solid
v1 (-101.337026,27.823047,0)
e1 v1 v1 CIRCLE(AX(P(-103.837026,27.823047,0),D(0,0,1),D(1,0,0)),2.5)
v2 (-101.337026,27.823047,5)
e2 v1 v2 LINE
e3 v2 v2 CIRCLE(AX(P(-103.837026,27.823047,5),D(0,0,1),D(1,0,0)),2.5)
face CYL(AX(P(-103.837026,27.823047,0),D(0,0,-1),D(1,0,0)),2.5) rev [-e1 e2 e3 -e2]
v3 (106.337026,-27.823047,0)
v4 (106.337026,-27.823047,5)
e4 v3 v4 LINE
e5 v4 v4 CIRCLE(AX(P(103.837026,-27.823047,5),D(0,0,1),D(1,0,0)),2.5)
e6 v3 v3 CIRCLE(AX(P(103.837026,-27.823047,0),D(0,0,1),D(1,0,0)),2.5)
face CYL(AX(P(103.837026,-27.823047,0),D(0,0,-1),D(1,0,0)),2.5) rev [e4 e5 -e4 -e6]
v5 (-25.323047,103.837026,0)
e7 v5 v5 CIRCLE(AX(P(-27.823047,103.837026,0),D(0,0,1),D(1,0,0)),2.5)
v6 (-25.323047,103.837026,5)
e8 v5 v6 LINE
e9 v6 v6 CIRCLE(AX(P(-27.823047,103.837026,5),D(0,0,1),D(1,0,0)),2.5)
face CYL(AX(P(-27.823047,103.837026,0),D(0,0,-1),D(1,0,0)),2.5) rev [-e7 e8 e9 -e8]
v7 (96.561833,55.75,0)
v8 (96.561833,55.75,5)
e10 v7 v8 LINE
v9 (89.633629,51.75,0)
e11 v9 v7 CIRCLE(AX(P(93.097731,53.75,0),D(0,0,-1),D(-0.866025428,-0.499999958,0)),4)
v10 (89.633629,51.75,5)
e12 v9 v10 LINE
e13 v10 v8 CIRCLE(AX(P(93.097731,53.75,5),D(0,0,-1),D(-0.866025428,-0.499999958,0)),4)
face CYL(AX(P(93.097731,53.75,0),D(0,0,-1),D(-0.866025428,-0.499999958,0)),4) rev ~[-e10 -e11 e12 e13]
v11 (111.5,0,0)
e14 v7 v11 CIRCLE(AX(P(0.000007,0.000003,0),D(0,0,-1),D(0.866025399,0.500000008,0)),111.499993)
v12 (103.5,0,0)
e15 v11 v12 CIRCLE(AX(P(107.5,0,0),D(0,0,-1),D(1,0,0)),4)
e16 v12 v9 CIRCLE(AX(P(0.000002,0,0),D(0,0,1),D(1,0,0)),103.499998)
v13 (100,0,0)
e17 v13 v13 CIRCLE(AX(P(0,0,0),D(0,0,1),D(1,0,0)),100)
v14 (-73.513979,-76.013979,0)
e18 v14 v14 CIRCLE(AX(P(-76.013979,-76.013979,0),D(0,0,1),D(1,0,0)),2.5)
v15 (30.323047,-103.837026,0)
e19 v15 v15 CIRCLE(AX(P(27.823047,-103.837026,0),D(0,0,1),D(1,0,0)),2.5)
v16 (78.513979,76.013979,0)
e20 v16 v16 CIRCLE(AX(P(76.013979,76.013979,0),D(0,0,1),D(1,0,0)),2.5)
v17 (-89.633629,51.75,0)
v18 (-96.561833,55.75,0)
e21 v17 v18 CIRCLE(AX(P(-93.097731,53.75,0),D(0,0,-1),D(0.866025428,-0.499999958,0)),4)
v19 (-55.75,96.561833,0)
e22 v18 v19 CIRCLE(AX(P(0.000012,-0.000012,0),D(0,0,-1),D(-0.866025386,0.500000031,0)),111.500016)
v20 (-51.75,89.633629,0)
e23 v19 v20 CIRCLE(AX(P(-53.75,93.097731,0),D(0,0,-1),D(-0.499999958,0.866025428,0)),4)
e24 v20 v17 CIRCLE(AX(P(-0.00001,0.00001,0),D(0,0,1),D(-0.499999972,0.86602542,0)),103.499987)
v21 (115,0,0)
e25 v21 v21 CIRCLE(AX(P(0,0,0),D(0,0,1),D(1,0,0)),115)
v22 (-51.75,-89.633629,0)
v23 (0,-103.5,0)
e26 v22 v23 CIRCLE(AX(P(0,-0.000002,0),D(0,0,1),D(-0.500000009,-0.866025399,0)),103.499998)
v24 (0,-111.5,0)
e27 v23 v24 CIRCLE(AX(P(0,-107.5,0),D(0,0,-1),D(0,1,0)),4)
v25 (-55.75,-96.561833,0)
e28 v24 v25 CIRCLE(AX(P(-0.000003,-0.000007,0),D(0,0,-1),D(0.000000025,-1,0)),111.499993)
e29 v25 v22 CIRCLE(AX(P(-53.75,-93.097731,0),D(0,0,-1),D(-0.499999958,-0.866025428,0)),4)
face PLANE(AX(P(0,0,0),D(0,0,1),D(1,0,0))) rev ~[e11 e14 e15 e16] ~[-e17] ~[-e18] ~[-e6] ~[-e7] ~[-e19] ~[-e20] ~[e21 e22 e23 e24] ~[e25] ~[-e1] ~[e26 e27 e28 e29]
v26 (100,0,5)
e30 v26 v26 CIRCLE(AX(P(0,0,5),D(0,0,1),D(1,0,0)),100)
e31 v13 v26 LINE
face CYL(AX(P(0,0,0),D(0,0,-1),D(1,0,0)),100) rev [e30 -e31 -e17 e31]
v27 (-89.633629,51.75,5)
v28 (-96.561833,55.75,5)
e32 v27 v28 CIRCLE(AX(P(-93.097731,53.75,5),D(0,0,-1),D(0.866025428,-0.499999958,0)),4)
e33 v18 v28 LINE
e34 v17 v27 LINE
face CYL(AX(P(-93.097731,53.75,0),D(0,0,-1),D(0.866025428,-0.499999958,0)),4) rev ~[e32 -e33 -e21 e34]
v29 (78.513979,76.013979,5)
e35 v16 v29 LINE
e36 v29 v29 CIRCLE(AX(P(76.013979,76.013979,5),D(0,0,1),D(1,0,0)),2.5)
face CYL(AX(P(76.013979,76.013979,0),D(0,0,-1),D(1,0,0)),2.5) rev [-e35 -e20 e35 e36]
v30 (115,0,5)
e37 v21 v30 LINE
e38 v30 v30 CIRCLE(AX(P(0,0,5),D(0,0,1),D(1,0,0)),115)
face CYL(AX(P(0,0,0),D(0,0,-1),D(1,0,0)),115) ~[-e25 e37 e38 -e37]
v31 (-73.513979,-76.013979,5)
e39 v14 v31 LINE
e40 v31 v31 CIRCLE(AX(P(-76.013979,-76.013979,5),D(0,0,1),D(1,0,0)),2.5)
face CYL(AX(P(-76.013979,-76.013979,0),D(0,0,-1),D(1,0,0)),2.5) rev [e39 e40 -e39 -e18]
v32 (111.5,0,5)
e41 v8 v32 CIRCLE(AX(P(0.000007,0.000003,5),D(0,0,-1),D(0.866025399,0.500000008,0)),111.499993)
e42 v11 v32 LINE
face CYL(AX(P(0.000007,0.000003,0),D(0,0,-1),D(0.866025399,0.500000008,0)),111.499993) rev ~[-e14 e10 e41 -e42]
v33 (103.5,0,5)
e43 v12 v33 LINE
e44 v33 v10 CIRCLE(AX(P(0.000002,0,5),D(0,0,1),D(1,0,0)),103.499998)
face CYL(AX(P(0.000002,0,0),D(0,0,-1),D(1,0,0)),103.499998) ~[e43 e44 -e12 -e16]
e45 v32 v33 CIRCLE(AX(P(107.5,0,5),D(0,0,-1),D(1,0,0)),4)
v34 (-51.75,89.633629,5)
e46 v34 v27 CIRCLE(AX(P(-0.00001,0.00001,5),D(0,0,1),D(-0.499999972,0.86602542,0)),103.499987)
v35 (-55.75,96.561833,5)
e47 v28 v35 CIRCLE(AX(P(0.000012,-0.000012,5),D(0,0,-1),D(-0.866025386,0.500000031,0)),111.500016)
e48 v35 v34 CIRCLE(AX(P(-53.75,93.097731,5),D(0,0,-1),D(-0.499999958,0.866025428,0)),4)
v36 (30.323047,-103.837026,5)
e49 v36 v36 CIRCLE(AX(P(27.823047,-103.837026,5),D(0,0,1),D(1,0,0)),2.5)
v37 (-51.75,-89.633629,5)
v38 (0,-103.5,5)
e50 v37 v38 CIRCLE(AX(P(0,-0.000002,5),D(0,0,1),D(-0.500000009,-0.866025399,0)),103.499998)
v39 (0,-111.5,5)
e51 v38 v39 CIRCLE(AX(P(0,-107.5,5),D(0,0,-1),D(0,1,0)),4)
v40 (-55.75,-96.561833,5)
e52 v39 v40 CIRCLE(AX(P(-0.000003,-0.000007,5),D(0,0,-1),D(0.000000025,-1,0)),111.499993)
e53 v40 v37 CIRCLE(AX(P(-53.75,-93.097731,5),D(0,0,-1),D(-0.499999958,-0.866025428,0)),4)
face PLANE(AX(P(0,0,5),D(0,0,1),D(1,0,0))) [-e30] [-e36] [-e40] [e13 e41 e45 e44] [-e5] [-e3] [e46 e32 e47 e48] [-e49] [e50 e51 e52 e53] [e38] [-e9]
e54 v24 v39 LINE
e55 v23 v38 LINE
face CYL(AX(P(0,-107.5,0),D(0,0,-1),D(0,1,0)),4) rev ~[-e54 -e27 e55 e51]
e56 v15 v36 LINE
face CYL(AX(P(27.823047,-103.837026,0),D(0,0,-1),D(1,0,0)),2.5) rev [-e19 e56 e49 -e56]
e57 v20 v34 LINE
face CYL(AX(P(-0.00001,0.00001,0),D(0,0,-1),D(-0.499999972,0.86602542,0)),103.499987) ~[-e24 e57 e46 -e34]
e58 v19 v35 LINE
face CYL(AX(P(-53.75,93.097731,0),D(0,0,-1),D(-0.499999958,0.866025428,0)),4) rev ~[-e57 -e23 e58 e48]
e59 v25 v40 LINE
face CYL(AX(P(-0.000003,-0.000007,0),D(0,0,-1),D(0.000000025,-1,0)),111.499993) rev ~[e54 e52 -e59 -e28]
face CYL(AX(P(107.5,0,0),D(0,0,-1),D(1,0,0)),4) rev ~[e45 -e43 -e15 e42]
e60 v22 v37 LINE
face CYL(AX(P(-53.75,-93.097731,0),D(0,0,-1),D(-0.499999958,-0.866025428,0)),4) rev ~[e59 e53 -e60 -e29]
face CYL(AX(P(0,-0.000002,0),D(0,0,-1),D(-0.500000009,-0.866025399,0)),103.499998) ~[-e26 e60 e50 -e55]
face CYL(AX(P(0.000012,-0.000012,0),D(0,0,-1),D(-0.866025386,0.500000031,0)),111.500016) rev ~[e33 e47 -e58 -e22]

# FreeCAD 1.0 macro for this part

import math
import FreeCAD as App
import Part
import Sketcher
Q = App.Units.Quantity

doc = App.newDocument("Part")
body = doc.addObject("PartDesign::Body", "Body")

# Sketch on XY plane
sketch1 = body.newObject("Sketcher::SketchObject", "Sketch")
sketch1.AttachmentSupport = (doc.getObject("XY_Plane"), [""])
sketch1.MapMode = "FlatFace"
sketch1.addGeometry(Part.Circle(App.Vector(0, 0, 0), App.Vector(0, 0, 1), 115), False)
sketch1.addGeometry(Part.Circle(App.Vector(-76.013979, -76.013979, 0), App.Vector(0, 0, 1), 2.5), False)
sketch1.addGeometry(Part.ArcOfCircle(Part.Circle(App.Vector(0, -107.5, 0), App.Vector(0, 0, 1), 4), math.radians(-90), math.radians(90)), False)
sketch1.addGeometry(Part.ArcOfCircle(Part.Circle(App.Vector(-0.000003, -0.000007, 0), App.Vector(0, 0, 1), 111.499993), math.radians(-120.000001), math.radians(-89.999999)), False)
sketch1.addGeometry(Part.ArcOfCircle(Part.Circle(App.Vector(-53.75, -93.097731, 0), App.Vector(0, 0, 1), 4), math.radians(60.000003), math.radians(240.000003)), False)
sketch1.addGeometry(Part.ArcOfCircle(Part.Circle(App.Vector(0, -0.000002, 0), App.Vector(0, 0, 1), 103.499998), math.radians(-120.000001), math.radians(-90)), False)
sketch1.addGeometry(Part.Circle(App.Vector(27.823047, -103.837026, 0), App.Vector(0, 0, 1), 2.5), False)
sketch1.addGeometry(Part.Circle(App.Vector(103.837026, -27.823047, 0), App.Vector(0, 0, 1), 2.5), False)
sketch1.addGeometry(Part.Circle(App.Vector(-103.837026, 27.823047, 0), App.Vector(0, 0, 1), 2.5), False)
sketch1.addGeometry(Part.Circle(App.Vector(0, 0, 0), App.Vector(0, 0, 1), 100), False)
sketch1.addGeometry(Part.ArcOfCircle(Part.Circle(App.Vector(-93.097731, 53.75, 0), App.Vector(0, 0, 1), 4), math.radians(150.000003), math.radians(330.000003)), False)
sketch1.addGeometry(Part.ArcOfCircle(Part.Circle(App.Vector(0.000012, -0.000012, 0), App.Vector(0, 0, 1), 111.500016), math.radians(120.000002), math.radians(149.999998)), False)
sketch1.addGeometry(Part.ArcOfCircle(Part.Circle(App.Vector(-53.75, 93.097731, 0), App.Vector(0, 0, 1), 4), math.radians(-60.000003), math.radians(119.999997)), False)
sketch1.addGeometry(Part.ArcOfCircle(Part.Circle(App.Vector(-0.00001, 0.00001, 0), App.Vector(0, 0, 1), 103.499987), math.radians(119.999998), math.radians(150.000002)), False)
sketch1.addGeometry(Part.Circle(App.Vector(-27.823047, 103.837026, 0), App.Vector(0, 0, 1), 2.5), False)
sketch1.addGeometry(Part.ArcOfCircle(Part.Circle(App.Vector(0.000007, 0.000003, 0), App.Vector(0, 0, 1), 111.499993), math.radians(-0.000001), math.radians(30.000001)), False)
sketch1.addGeometry(Part.ArcOfCircle(Part.Circle(App.Vector(107.5, 0, 0), App.Vector(0, 0, 1), 4), math.radians(180), math.radians(360)), False)
sketch1.addGeometry(Part.ArcOfCircle(Part.Circle(App.Vector(0.000002, 0, 0), App.Vector(0, 0, 1), 103.499998), math.radians(0), math.radians(30.000001)), False)
sketch1.addGeometry(Part.ArcOfCircle(Part.Circle(App.Vector(93.097731, 53.75, 0), App.Vector(0, 0, 1), 4), math.radians(29.999997), math.radians(209.999997)), False)
sketch1.addGeometry(Part.Circle(App.Vector(76.013979, 76.013979, 0), App.Vector(0, 0, 1), 2.5), False)
sketch1.addConstraint(Sketcher.Constraint("Coincident", 2, 1, 3, 2))
sketch1.addConstraint(Sketcher.Constraint("Coincident", 3, 1, 4, 2))
sketch1.addConstraint(Sketcher.Constraint("Coincident", 4, 1, 5, 1))
sketch1.addConstraint(Sketcher.Constraint("Coincident", 5, 2, 2, 2))
sketch1.addConstraint(Sketcher.Constraint("Coincident", 10, 1, 11, 2))
sketch1.addConstraint(Sketcher.Constraint("Coincident", 11, 1, 12, 2))
sketch1.addConstraint(Sketcher.Constraint("Coincident", 12, 1, 13, 1))
sketch1.addConstraint(Sketcher.Constraint("Coincident", 13, 2, 10, 2))
sketch1.addConstraint(Sketcher.Constraint("Coincident", 15, 1, 16, 2))
sketch1.addConstraint(Sketcher.Constraint("Coincident", 16, 1, 17, 1))
sketch1.addConstraint(Sketcher.Constraint("Coincident", 17, 2, 18, 2))
sketch1.addConstraint(Sketcher.Constraint("Coincident", 18, 1, 15, 2))
sketch1.addConstraint(Sketcher.Constraint("Coincident", 0, 3, -1, 1))
sketch1.addConstraint(Sketcher.Constraint("Coincident", 3, 3, -1, 1))
sketch1.addConstraint(Sketcher.Constraint("Coincident", 5, 3, -1, 1))
sketch1.addConstraint(Sketcher.Constraint("Coincident", 9, 3, -1, 1))
sketch1.addConstraint(Sketcher.Constraint("Coincident", 15, 3, -1, 1))
sketch1.addConstraint(Sketcher.Constraint("Coincident", 17, 3, -1, 1))
sketch1.addConstraint(Sketcher.Constraint("PointOnObject", 2, 3, -2))
sketch1.addConstraint(Sketcher.Constraint("PointOnObject", 16, 3, -1))
sketch1.addConstraint(Sketcher.Constraint("PointOnObject", 2, 1, -2))
sketch1.addConstraint(Sketcher.Constraint("PointOnObject", 5, 2, -2))
sketch1.addConstraint(Sketcher.Constraint("PointOnObject", 15, 1, -1))
sketch1.addConstraint(Sketcher.Constraint("PointOnObject", 16, 1, -1))
sketch1.addConstraint(Sketcher.Constraint("Diameter", 0, Q("230 mm")))
sketch1.addConstraint(Sketcher.Constraint("Diameter", 1, Q("5 mm")))
sketch1.addConstraint(Sketcher.Constraint("Diameter", 6, Q("5 mm")))
sketch1.addConstraint(Sketcher.Constraint("Diameter", 7, Q("5 mm")))
sketch1.addConstraint(Sketcher.Constraint("Diameter", 8, Q("5 mm")))
sketch1.addConstraint(Sketcher.Constraint("Diameter", 9, Q("200 mm")))
sketch1.addConstraint(Sketcher.Constraint("Diameter", 14, Q("5 mm")))
sketch1.addConstraint(Sketcher.Constraint("Diameter", 19, Q("5 mm")))
sketch1.addConstraint(Sketcher.Constraint("Radius", 2, Q("4 mm")))
sketch1.addConstraint(Sketcher.Constraint("Radius", 10, Q("4 mm")))
sketch1.addConstraint(Sketcher.Constraint("Radius", 12, Q("4 mm")))
sketch1.addConstraint(Sketcher.Constraint("Radius", 16, Q("4 mm")))
sketch1.addConstraint(Sketcher.Constraint("Radius", 5, Q("103.499998 mm")))
sketch1.addConstraint(Sketcher.Constraint("Radius", 17, Q("103.499998 mm")))
sketch1.addConstraint(Sketcher.Constraint("DistanceX", 3, 1, 4, 3, Q("2 mm")))
sketch1.addConstraint(Sketcher.Constraint("DistanceX", 4, 3, 4, 1, Q("2 mm")))
sketch1.addConstraint(Sketcher.Constraint("DistanceY", 10, 3, 10, 1, Q("2 mm")))
sketch1.addConstraint(Sketcher.Constraint("DistanceX", 11, 1, 12, 3, Q("2 mm")))
sketch1.addConstraint(Sketcher.Constraint("DistanceX", 12, 3, 12, 1, Q("2 mm")))
sketch1.addConstraint(Sketcher.Constraint("DistanceY", 13, 2, 10, 3, Q("2 mm")))
sketch1.addConstraint(Sketcher.Constraint("DistanceY", 17, 2, 18, 3, Q("2 mm")))
sketch1.addConstraint(Sketcher.Constraint("DistanceY", 18, 3, 18, 1, Q("2 mm")))
sketch1.addConstraint(Sketcher.Constraint("DistanceX", 4, 3, -1, 1, Q("53.75 mm")))
sketch1.addConstraint(Sketcher.Constraint("DistanceY", -1, 1, 10, 3, Q("53.75 mm")))
sketch1.addConstraint(Sketcher.Constraint("DistanceX", 12, 3, -1, 1, Q("53.75 mm")))
sketch1.addConstraint(Sketcher.Constraint("DistanceY", -1, 1, 18, 3, Q("53.75 mm")))
sketch1.addConstraint(Sketcher.Constraint("Radius", 11, Q("111.500016 mm")))
sketch1.addConstraint(Sketcher.Constraint("Radius", 13, Q("103.499987 mm")))
sketch1.addConstraint(Sketcher.Constraint("DistanceX", 1, 3, -1, 1, Q("76.013979 mm")))
sketch1.addConstraint(Sketcher.Constraint("DistanceY", 1, 3, -1, 1, Q("76.013979 mm")))
sketch1.addConstraint(Sketcher.Constraint("DistanceX", 10, 3, -1, 1, Q("93.097731 mm")))
sketch1.addConstraint(Sketcher.Constraint("DistanceY", -1, 1, 12, 3, Q("93.097731 mm")))
sketch1.addConstraint(Sketcher.Constraint("DistanceX", -1, 1, 19, 3, Q("76.013979 mm")))
sketch1.addConstraint(Sketcher.Constraint("DistanceY", -1, 1, 19, 3, Q("76.013979 mm")))
sketch1.addConstraint(Sketcher.Constraint("DistanceX", 3, 3, 6, 3, Q("27.82305 mm")))
sketch1.addConstraint(Sketcher.Constraint("DistanceY", 6, 3, 3, 3, Q("103.837019 mm")))
sketch1.addConstraint(Sketcher.Constraint("DistanceX", 6, 3, 7, 3, Q("76.013979 mm")))
sketch1.addConstraint(Sketcher.Constraint("DistanceY", 6, 3, 7, 3, Q("76.013979 mm")))
sketch1.addConstraint(Sketcher.Constraint("DistanceY", 5, 3, 8, 3, Q("27.823049 mm")))
sketch1.addConstraint(Sketcher.Constraint("DistanceX", 8, 3, -1, 1, Q("103.837026 mm")))
sketch1.addConstraint(Sketcher.Constraint("DistanceX", 14, 3, -1, 1, Q("27.823047 mm")))
sketch1.addConstraint(Sketcher.Constraint("DistanceY", -1, 1, 14, 3, Q("103.837026 mm")))
pad1 = body.newObject("PartDesign::Pad", "Pad")
pad1.Profile = sketch1
pad1.Length = 5

doc.recompute()
